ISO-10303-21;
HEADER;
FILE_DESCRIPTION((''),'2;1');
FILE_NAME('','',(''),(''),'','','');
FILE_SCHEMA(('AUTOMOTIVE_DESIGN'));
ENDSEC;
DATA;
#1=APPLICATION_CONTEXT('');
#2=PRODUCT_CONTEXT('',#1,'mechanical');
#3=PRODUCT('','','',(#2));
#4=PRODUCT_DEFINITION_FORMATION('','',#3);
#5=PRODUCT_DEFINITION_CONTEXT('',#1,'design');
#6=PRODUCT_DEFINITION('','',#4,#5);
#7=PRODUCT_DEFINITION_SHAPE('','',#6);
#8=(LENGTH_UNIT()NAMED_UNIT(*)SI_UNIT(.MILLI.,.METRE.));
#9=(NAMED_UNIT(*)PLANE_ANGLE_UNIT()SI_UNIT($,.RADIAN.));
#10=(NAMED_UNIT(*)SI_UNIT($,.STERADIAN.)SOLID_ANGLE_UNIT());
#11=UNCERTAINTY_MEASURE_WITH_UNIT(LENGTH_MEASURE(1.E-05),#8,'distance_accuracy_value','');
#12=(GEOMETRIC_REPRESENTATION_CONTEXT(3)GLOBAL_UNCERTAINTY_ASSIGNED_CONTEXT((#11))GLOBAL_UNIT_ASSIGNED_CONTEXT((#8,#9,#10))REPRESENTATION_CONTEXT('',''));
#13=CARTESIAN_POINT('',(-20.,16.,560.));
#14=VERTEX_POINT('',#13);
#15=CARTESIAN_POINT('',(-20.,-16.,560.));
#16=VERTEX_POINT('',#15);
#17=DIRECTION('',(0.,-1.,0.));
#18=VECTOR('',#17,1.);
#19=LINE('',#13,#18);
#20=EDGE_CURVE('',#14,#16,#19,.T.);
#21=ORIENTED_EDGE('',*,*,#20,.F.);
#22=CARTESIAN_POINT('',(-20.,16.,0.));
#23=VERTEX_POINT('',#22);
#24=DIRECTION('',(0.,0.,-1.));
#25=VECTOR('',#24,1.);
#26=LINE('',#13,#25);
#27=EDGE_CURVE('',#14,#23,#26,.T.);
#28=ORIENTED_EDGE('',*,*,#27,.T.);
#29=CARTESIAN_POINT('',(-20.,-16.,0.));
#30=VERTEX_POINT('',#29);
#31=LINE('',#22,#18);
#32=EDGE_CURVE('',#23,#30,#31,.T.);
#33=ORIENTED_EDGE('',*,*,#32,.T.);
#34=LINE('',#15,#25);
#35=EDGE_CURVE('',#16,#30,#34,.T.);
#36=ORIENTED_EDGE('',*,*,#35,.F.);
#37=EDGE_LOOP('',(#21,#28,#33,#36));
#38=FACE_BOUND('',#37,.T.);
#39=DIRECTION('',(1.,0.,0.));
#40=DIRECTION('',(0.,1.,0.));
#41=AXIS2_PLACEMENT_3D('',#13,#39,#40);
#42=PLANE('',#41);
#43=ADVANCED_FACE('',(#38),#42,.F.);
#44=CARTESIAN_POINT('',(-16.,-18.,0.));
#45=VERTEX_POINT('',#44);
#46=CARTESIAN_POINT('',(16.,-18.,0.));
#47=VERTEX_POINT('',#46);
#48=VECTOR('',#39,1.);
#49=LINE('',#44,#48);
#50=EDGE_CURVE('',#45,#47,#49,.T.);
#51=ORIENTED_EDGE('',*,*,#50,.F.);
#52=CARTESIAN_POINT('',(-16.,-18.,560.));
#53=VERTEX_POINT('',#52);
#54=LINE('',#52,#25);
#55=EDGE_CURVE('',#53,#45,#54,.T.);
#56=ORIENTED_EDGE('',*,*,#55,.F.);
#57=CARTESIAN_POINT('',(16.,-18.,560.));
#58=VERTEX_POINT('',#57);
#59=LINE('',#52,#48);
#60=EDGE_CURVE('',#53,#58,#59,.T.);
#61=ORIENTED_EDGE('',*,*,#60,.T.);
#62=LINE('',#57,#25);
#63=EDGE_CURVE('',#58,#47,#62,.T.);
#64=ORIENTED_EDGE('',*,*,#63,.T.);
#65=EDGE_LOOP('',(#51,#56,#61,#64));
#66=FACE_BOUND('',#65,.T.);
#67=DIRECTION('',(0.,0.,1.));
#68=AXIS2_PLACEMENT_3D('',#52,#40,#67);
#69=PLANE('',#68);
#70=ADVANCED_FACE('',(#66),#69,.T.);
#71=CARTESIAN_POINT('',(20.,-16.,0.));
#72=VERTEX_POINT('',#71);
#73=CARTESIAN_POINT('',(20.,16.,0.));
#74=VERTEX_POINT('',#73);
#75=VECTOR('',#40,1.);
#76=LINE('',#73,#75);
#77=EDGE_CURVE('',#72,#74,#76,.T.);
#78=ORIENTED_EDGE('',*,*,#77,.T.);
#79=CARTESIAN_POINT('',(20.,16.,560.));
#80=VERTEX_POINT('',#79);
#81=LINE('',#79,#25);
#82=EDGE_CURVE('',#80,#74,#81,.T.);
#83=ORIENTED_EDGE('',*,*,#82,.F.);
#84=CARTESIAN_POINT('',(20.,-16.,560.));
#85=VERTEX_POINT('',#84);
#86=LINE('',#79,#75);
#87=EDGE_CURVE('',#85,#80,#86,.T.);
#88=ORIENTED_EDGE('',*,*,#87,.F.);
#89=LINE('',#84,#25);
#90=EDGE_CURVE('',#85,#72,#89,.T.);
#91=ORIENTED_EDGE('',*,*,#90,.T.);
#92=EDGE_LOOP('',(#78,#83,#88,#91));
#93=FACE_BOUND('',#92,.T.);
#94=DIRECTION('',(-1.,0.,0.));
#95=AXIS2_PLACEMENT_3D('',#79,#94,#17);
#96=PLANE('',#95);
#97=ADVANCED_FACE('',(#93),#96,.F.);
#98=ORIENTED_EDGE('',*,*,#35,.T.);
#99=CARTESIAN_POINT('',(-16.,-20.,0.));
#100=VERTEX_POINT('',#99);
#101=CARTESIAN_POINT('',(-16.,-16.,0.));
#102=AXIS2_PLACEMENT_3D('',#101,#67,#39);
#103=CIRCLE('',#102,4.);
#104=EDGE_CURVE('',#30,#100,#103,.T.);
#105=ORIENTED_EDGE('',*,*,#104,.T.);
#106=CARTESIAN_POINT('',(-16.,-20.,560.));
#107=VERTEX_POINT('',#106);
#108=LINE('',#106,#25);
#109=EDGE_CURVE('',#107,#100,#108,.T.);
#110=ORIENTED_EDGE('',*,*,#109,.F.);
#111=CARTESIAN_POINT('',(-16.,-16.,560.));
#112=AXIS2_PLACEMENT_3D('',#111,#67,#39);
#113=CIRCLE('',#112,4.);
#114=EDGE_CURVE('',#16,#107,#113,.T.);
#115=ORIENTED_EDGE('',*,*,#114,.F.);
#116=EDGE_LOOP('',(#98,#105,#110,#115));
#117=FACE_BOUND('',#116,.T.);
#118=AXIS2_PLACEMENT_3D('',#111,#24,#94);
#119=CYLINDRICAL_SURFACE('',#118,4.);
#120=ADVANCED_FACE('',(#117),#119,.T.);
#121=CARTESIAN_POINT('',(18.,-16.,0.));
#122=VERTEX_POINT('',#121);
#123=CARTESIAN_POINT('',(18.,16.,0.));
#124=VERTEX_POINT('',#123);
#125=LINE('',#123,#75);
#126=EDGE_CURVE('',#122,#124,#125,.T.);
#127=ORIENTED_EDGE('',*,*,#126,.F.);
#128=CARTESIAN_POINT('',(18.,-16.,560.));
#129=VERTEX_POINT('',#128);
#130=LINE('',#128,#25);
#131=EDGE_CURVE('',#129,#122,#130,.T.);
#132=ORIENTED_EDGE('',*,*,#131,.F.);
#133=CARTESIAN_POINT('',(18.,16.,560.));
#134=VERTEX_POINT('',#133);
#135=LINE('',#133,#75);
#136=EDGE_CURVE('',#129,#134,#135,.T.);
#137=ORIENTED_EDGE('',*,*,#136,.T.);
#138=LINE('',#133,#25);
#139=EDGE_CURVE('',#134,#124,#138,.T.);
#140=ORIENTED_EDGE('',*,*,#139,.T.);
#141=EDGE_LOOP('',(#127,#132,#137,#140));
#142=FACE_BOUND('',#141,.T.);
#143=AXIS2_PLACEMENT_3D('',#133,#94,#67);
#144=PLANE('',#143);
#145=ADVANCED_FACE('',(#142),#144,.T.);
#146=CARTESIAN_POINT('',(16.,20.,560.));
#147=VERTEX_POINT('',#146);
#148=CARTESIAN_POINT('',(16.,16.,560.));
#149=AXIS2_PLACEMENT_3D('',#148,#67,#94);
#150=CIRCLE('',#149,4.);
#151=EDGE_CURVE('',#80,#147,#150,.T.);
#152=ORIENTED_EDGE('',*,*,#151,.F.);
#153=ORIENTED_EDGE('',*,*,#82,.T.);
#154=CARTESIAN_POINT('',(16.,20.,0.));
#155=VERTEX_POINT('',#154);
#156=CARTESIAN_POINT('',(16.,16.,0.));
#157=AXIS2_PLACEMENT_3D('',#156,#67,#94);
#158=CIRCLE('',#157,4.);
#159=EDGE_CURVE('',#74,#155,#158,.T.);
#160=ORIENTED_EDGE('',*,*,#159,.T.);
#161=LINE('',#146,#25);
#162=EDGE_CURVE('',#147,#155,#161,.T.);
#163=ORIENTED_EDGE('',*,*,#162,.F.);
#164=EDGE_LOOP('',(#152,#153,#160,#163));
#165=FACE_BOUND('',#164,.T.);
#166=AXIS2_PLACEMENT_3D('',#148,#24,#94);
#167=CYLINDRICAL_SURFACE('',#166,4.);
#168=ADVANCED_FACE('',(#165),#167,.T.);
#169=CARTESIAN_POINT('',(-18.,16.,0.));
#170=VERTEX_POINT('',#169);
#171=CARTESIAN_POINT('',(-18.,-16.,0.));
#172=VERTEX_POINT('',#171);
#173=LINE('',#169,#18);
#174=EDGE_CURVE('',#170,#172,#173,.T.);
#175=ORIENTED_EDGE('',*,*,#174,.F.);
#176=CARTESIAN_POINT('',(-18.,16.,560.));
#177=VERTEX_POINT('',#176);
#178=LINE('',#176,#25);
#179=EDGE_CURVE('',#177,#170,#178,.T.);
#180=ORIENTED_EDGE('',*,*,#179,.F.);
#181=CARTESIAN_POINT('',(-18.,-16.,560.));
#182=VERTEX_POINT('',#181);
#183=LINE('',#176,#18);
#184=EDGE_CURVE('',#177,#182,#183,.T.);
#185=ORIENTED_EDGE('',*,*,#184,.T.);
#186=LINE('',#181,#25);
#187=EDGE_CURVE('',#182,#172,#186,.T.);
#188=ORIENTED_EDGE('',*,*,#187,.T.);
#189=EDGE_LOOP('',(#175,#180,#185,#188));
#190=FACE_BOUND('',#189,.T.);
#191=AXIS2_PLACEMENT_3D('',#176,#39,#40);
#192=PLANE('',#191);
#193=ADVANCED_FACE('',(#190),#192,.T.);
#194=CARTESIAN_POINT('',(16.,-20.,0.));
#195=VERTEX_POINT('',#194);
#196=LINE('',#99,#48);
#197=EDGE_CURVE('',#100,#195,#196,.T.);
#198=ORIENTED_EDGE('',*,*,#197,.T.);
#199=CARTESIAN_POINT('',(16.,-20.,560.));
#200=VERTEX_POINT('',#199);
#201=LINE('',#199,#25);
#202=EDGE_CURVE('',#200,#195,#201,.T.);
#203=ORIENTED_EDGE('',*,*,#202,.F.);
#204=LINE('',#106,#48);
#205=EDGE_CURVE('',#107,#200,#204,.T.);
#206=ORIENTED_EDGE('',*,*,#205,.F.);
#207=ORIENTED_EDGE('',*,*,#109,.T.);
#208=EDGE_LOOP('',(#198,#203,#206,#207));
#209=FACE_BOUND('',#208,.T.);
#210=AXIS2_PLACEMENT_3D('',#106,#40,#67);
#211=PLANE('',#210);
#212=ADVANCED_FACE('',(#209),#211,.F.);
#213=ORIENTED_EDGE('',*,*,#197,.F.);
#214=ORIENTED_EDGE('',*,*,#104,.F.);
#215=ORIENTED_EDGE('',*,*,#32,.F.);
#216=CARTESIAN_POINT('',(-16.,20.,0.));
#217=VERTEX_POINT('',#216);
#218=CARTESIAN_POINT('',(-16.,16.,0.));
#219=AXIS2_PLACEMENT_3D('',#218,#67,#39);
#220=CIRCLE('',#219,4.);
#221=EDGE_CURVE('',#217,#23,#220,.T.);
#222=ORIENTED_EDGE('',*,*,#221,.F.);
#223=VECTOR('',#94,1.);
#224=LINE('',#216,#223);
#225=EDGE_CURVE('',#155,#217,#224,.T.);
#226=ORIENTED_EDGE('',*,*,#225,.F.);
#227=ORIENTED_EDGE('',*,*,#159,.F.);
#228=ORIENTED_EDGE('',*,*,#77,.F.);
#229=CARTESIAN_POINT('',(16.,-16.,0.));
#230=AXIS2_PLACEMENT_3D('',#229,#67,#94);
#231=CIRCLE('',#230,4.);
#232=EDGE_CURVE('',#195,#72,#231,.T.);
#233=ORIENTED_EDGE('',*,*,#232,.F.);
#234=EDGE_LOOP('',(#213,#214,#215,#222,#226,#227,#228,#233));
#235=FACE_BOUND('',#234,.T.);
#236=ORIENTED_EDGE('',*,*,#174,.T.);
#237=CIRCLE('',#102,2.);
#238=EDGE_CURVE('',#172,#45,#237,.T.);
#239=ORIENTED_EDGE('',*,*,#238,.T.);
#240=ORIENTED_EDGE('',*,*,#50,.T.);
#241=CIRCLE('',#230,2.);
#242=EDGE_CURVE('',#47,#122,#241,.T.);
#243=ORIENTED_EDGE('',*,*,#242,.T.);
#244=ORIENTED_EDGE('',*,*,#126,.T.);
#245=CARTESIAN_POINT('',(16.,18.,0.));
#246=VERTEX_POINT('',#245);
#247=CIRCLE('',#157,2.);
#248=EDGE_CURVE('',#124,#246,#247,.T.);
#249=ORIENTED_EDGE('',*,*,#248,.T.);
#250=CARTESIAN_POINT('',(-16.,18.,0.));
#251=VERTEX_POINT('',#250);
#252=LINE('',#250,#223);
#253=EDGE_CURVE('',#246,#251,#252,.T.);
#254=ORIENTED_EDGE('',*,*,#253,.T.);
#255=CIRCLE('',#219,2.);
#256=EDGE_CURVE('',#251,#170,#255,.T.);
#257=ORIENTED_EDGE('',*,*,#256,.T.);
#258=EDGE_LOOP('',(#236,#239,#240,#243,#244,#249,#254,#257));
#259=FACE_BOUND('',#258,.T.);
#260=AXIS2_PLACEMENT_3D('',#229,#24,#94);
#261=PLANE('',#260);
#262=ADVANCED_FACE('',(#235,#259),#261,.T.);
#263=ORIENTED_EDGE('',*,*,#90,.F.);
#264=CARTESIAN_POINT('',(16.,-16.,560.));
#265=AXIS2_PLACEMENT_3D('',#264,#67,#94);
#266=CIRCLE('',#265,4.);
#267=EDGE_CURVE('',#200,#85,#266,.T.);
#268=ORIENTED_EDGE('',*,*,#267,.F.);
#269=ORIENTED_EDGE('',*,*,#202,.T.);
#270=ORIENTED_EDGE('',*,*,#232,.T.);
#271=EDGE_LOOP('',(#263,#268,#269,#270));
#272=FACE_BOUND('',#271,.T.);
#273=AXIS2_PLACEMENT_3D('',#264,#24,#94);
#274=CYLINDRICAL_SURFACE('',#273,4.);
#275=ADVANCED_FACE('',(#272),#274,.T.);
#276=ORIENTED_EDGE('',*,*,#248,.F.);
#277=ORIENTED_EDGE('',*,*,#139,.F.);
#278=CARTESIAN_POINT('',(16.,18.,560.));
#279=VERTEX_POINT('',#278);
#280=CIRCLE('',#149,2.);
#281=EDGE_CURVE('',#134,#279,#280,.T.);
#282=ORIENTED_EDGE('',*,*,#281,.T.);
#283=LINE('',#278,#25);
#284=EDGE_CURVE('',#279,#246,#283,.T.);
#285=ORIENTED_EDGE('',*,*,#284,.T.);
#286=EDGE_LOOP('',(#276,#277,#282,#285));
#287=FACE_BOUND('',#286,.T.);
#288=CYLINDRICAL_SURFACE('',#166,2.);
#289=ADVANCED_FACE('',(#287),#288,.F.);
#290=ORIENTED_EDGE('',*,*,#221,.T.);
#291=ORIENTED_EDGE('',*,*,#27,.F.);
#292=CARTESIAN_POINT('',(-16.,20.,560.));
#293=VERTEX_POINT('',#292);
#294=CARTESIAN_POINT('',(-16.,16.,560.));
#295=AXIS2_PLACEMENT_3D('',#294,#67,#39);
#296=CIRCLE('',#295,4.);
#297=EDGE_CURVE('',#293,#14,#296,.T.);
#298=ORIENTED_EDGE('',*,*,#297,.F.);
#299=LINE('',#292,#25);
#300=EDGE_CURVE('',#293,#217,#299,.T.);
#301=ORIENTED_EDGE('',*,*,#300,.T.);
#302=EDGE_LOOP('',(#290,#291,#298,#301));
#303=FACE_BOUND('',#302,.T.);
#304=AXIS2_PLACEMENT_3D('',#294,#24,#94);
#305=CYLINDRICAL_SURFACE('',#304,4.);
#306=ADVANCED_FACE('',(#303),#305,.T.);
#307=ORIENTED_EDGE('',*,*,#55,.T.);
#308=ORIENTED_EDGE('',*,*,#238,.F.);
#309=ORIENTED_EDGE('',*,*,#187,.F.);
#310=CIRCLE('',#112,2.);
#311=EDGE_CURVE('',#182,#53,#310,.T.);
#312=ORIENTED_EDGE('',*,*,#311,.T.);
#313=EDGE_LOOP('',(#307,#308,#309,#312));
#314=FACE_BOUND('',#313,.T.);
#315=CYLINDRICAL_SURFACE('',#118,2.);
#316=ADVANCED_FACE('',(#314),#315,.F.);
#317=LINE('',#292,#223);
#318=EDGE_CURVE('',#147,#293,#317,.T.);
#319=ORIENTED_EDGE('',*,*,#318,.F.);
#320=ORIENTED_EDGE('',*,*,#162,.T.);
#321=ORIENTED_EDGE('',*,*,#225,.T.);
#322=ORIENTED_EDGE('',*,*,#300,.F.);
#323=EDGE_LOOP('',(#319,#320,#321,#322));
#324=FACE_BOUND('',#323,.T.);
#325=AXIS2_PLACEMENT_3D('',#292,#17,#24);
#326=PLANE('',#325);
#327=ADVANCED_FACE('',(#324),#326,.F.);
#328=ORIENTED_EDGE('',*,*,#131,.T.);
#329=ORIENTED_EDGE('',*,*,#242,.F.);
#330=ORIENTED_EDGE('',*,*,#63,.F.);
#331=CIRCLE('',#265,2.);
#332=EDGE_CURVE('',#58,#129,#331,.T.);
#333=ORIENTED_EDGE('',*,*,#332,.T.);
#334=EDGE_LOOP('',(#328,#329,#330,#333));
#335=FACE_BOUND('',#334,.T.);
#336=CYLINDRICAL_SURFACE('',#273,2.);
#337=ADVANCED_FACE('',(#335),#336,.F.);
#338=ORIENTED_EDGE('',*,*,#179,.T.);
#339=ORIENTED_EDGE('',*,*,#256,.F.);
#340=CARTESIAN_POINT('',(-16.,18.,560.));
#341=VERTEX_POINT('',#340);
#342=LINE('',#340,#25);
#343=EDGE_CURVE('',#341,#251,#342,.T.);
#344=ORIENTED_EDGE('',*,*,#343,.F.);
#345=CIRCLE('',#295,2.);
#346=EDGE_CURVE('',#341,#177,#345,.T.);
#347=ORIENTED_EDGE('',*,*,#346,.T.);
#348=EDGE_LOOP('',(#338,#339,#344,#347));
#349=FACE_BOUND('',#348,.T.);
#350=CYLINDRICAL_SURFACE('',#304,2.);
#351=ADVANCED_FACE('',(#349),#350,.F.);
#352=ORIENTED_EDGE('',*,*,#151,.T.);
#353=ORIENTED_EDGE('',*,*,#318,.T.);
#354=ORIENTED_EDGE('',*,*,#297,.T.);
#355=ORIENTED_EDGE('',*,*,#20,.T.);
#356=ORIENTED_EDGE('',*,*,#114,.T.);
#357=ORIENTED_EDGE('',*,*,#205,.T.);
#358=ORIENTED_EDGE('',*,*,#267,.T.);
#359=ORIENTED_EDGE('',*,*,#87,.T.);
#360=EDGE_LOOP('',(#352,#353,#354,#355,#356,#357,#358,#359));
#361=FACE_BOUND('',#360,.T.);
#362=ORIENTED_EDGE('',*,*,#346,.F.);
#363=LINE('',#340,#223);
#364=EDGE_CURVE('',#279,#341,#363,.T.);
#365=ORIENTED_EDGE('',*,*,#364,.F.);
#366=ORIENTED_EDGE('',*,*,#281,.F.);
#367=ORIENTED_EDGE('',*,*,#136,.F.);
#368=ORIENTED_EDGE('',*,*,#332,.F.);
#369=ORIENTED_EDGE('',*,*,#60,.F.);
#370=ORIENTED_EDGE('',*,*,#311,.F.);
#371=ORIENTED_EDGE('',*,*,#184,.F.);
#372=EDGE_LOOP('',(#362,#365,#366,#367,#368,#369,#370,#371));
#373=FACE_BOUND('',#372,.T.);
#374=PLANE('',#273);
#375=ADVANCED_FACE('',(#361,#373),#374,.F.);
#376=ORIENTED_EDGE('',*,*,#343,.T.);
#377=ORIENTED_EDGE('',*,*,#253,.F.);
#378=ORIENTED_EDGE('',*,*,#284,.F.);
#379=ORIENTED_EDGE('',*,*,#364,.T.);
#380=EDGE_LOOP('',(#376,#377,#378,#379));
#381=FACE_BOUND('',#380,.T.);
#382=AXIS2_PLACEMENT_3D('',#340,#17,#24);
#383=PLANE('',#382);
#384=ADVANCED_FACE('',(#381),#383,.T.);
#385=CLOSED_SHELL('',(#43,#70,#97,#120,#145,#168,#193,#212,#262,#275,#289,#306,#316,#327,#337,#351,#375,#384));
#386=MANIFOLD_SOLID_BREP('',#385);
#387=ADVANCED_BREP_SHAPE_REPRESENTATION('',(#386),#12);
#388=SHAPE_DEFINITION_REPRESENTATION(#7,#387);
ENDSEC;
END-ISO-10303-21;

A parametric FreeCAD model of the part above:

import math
import FreeCAD as App
import Part
import Sketcher

doc = App.newDocument("Part")
body = doc.addObject("PartDesign::Body", "Body")

# Sketch on XY plane
sketch1 = body.newObject("Sketcher::SketchObject", "Sketch")
sketch1.AttachmentSupport = (doc.getObject("XY_Plane"), [""])
sketch1.MapMode = "FlatFace"
sketch1.addGeometry([
    Part.LineSegment(App.Vector(16, 20, 0), App.Vector(-16, 20, 0)),  # 0
    Part.ArcOfCircle(Part.Circle(App.Vector(-16, 16, 0), App.Vector(0, 0, 1), 4), math.radians(90), math.radians(180)),  # 1
    Part.LineSegment(App.Vector(-20, 16, 0), App.Vector(-20, -16, 0)),  # 2
    Part.ArcOfCircle(Part.Circle(App.Vector(-16, -16, 0), App.Vector(0, 0, 1), 4), math.radians(180), math.radians(270)),  # 3
    Part.LineSegment(App.Vector(-16, -20, 0), App.Vector(16, -20, 0)),  # 4
    Part.ArcOfCircle(Part.Circle(App.Vector(16, -16, 0), App.Vector(0, 0, 1), 4), math.radians(-90), math.radians(0)),  # 5
    Part.LineSegment(App.Vector(20, -16, 0), App.Vector(20, 16, 0)),  # 6
    Part.ArcOfCircle(Part.Circle(App.Vector(16, 16, 0), App.Vector(0, 0, 1), 4), math.radians(0), math.radians(90)),  # 7
    Part.ArcOfCircle(Part.Circle(App.Vector(-16, 16, 0), App.Vector(0, 0, 1), 2), math.radians(90), math.radians(180)),  # 8
    Part.LineSegment(App.Vector(-16, 18, 0), App.Vector(16, 18, 0)),  # 9
    Part.ArcOfCircle(Part.Circle(App.Vector(16, 16, 0), App.Vector(0, 0, 1), 2), math.radians(0), math.radians(90)),  # 10
    Part.LineSegment(App.Vector(18, 16, 0), App.Vector(18, -16, 0)),  # 11
    Part.ArcOfCircle(Part.Circle(App.Vector(16, -16, 0), App.Vector(0, 0, 1), 2), math.radians(-90), math.radians(0)),  # 12
    Part.LineSegment(App.Vector(16, -18, 0), App.Vector(-16, -18, 0)),  # 13
    Part.ArcOfCircle(Part.Circle(App.Vector(-16, -16, 0), App.Vector(0, 0, 1), 2), math.radians(-180), math.radians(-90)),  # 14
    Part.LineSegment(App.Vector(-18, -16, 0), App.Vector(-18, 16, 0)),  # 15
], False)
sketch1.addConstraint([
    Sketcher.Constraint("Tangent", 0, 2, 1, 1),
    Sketcher.Constraint("Tangent", 1, 2, 2, 1),
    Sketcher.Constraint("Tangent", 2, 2, 3, 1),
    Sketcher.Constraint("Tangent", 3, 2, 4, 1),
    Sketcher.Constraint("Tangent", 4, 2, 5, 1),
    Sketcher.Constraint("Tangent", 5, 2, 6, 1),
    Sketcher.Constraint("Tangent", 6, 2, 7, 1),
    Sketcher.Constraint("Tangent", 7, 2, 0, 1),
    Sketcher.Constraint("Tangent", 8, 1, 9, 1),
    Sketcher.Constraint("Tangent", 9, 2, 10, 2),
    Sketcher.Constraint("Tangent", 10, 1, 11, 1),
    Sketcher.Constraint("Tangent", 11, 2, 12, 2),
    Sketcher.Constraint("Tangent", 12, 1, 13, 1),
    Sketcher.Constraint("Tangent", 13, 2, 14, 2),
    Sketcher.Constraint("Tangent", 14, 1, 15, 1),
    Sketcher.Constraint("Tangent", 15, 2, 8, 2),
    Sketcher.Constraint("Horizontal", 0),
    Sketcher.Constraint("Vertical", 2),
    Sketcher.Constraint("Horizontal", 4),
    Sketcher.Constraint("Vertical", 6),
    Sketcher.Constraint("Horizontal", 9),
    Sketcher.Constraint("Vertical", 11),
    Sketcher.Constraint("Horizontal", 13),
    Sketcher.Constraint("Vertical", 15),
    Sketcher.Constraint("Coincident", 8, 3, 1, 3),
    Sketcher.Constraint("Coincident", 10, 3, 7, 3),
    Sketcher.Constraint("Coincident", 12, 3, 5, 3),
    Sketcher.Constraint("Equal", 1, 3),
    Sketcher.Constraint("Equal", 3, 5),
    Sketcher.Constraint("Equal", 5, 7),
    Sketcher.Constraint("Equal", 12, 14),
    Sketcher.Constraint("Symmetric", 1, 3, 5, 3, -1, 1),
    Sketcher.Constraint("Equal", 13, 2),
    Sketcher.Constraint("Radius", 1, 4.0),
    Sketcher.Constraint("Radius", 8, 2.0),
    Sketcher.Constraint("DistanceX", 0, 2, 0, 1, 32.0),
])
pad1 = body.newObject("PartDesign::Pad", "Pad")
pad1.Profile = sketch1
pad1.Length = 560

doc.recompute()
